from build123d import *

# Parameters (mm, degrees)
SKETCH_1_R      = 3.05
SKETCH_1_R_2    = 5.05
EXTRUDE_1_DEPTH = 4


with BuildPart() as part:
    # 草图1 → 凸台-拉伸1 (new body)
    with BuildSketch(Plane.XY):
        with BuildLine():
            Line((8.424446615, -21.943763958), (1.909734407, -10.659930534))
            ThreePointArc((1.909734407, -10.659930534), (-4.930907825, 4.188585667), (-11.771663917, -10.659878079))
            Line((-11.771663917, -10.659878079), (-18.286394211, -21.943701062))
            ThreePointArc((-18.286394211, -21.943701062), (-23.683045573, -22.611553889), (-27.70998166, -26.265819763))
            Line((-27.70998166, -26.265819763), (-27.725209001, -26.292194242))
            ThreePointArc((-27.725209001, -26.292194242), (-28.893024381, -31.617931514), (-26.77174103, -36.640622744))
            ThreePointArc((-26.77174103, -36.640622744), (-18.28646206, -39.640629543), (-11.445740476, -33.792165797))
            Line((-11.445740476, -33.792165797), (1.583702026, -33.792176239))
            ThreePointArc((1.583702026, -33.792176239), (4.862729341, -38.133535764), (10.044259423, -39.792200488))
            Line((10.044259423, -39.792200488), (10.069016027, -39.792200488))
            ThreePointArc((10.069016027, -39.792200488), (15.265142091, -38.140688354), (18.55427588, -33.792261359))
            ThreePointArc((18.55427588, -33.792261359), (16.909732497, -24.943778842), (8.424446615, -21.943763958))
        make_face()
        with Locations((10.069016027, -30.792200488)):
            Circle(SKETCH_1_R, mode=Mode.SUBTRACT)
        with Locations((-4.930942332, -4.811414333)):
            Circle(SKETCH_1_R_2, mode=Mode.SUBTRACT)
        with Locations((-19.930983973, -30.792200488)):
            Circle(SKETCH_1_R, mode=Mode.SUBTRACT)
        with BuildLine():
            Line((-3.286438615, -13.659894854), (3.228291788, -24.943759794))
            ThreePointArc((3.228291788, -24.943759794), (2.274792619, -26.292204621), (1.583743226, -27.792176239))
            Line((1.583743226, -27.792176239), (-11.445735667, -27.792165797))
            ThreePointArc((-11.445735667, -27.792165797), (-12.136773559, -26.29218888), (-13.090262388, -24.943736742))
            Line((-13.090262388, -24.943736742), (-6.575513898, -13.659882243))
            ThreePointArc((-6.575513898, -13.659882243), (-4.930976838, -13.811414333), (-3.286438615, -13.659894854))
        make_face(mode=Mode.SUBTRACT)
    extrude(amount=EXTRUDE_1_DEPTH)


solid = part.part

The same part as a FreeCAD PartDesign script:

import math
import FreeCAD as App
import Part
import Sketcher
from FreeCAD import Vector

doc = App.newDocument("Part")
body = doc.addObject("PartDesign::Body", "Body")

# Sketch on XY plane
sketch1 = body.newObject("Sketcher::SketchObject", "Sketch")
sketch1.AttachmentSupport = (doc.getObject("XY_Plane"), [""])
sketch1.MapMode = "FlatFace"
sketch1.addGeometry(Part.LineSegment(Vector(8.424447, -21.943764, 0), Vector(1.909734, -10.659931, 0)), False)
sketch1.addGeometry(Part.ArcOfCircle(Part.Circle(Vector(-4.930942, -4.811414, 0), Vector(0, 0, 1), 9), math.radians(-40.529173), math.radians(220.528733)), False)
sketch1.addGeometry(Part.LineSegment(Vector(-11.771664, -10.659878, 0), Vector(-18.286394, -21.943701, 0)), False)
sketch1.addGeometry(Part.ArcOfCircle(Part.Circle(Vector(-19.931019, -30.792159, 0), Vector(0, 0, 1), 9), math.radians(79.470827), math.radians(149.806189)), False)
sketch1.addGeometry(Part.LineSegment(Vector(-27.709982, -26.26582, 0), Vector(-27.725209, -26.292194, 0)), False)
sketch1.addGeometry(Part.ArcOfCircle(Part.Circle(Vector(-19.930984, -30.7922, 0), Vector(0, 0, 1), 9), math.radians(149.999954), math.radians(220.528386)), False)
sketch1.addGeometry(Part.ArcOfCircle(Part.Circle(Vector(-19.931019, -30.792159, 0), Vector(0, 0, 1), 9), math.radians(-139.471267), math.radians(-19.471267)), False)
sketch1.addGeometry(Part.LineSegment(Vector(-11.44574, -33.792166, 0), Vector(1.583702, -33.792176, 0)), False)
sketch1.addGeometry(Part.ArcOfCircle(Part.Circle(Vector(10.069004, -30.792235, 0), Vector(0, 0, 1), 9), math.radians(-160.529173), math.radians(-90.157529)), False)
sketch1.addGeometry(Part.LineSegment(Vector(10.044259, -39.7922, 0), Vector(10.069016, -39.7922, 0)), False)
sketch1.addGeometry(Part.ArcOfCircle(Part.Circle(Vector(10.069016, -30.7922, 0), Vector(0, 0, 1), 9), math.radians(-90), math.radians(-19.471632)), False)
sketch1.addGeometry(Part.ArcOfCircle(Part.Circle(Vector(10.069004, -30.792235, 0), Vector(0, 0, 1), 9), math.radians(-19.471402), math.radians(100.528733)), False)
sketch1.addGeometry(Part.Circle(Vector(-19.930984, -30.7922, 0), Vector(0, 0, 1), 3.05), False)
sketch1.addGeometry(Part.ArcOfCircle(Part.Circle(Vector(-4.930942, -4.811414, 0), Vector(0, 0, 1), 9), math.radians(-100.528825), math.radians(-79.471614)), False)
sketch1.addGeometry(Part.LineSegment(Vector(-3.286439, -13.659895, 0), Vector(3.228292, -24.94376, 0)), False)
sketch1.addGeometry(Part.ArcOfCircle(Part.Circle(Vector(10.069004, -30.792235, 0), Vector(0, 0, 1), 9), math.radians(139.471175), math.radians(160.528386)), False)
sketch1.addGeometry(Part.LineSegment(Vector(1.583743, -27.792176, 0), Vector(-11.445736, -27.792166, 0)), False)
sketch1.addGeometry(Part.ArcOfCircle(Part.Circle(Vector(-19.931019, -30.792159, 0), Vector(0, 0, 1), 9), math.radians(19.471175), math.radians(40.528386)), False)
sketch1.addGeometry(Part.LineSegment(Vector(-13.090262, -24.943737, 0), Vector(-6.575514, -13.659882, 0)), False)
sketch1.addGeometry(Part.Circle(Vector(10.069016, -30.7922, 0), Vector(0, 0, 1), 3.05), False)
sketch1.addGeometry(Part.Circle(Vector(-4.930942, -4.811414, 0), Vector(0, 0, 1), 5.05), False)
sketch1.addConstraint(Sketcher.Constraint("Coincident", 0, 2, 1, 1))
sketch1.addConstraint(Sketcher.Constraint("Coincident", 1, 2, 2, 1))
sketch1.addConstraint(Sketcher.Constraint("Coincident", 2, 2, 3, 1))
sketch1.addConstraint(Sketcher.Constraint("Coincident", 3, 2, 4, 1))
sketch1.addConstraint(Sketcher.Constraint("Coincident", 4, 2, 5, 1))
sketch1.addConstraint(Sketcher.Constraint("Coincident", 5, 2, 6, 1))
sketch1.addConstraint(Sketcher.Constraint("Coincident", 6, 2, 7, 1))
sketch1.addConstraint(Sketcher.Constraint("Coincident", 7, 2, 8, 1))
sketch1.addConstraint(Sketcher.Constraint("Coincident", 8, 2, 9, 1))
sketch1.addConstraint(Sketcher.Constraint("Coincident", 9, 2, 10, 1))
sketch1.addConstraint(Sketcher.Constraint("Coincident", 10, 2, 11, 1))
sketch1.addConstraint(Sketcher.Constraint("Coincident", 11, 2, 0, 1))
sketch1.addConstraint(Sketcher.Constraint("Coincident", 13, 2, 14, 1))
sketch1.addConstraint(Sketcher.Constraint("Coincident", 14, 2, 15, 1))
sketch1.addConstraint(Sketcher.Constraint("Coincident", 15, 2, 16, 1))
sketch1.addConstraint(Sketcher.Constraint("Coincident", 16, 2, 17, 1))
sketch1.addConstraint(Sketcher.Constraint("Coincident", 17, 2, 18, 1))
sketch1.addConstraint(Sketcher.Constraint("Coincident", 18, 2, 13, 1))
sketch1.addConstraint(Sketcher.Constraint("Horizontal", 9))
sketch1.addConstraint(Sketcher.Constraint("Coincident", 6, 3, 3, 3))
sketch1.addConstraint(Sketcher.Constraint("Coincident", 11, 3, 8, 3))
sketch1.addConstraint(Sketcher.Constraint("Coincident", 12, 3, 5, 3))
sketch1.addConstraint(Sketcher.Constraint("Coincident", 13, 3, 1, 3))
sketch1.addConstraint(Sketcher.Constraint("Coincident", 15, 3, 8, 3))
sketch1.addConstraint(Sketcher.Constraint("Coincident", 17, 3, 3, 3))
sketch1.addConstraint(Sketcher.Constraint("Coincident", 19, 3, 10, 3))
sketch1.addConstraint(Sketcher.Constraint("Coincident", 20, 3, 1, 3))
sketch1.addConstraint(Sketcher.Constraint("Radius", 1, 9.0))
sketch1.addConstraint(Sketcher.Constraint("Radius", 3, 9.0))
sketch1.addConstraint(Sketcher.Constraint("Radius", 5, 9.0))
sketch1.addConstraint(Sketcher.Constraint("Radius", 6, 9.0))
sketch1.addConstraint(Sketcher.Constraint("Radius", 8, 9.0))
sketch1.addConstraint(Sketcher.Constraint("Radius", 10, 9.0))
sketch1.addConstraint(Sketcher.Constraint("Radius", 11, 9.0))
sketch1.addConstraint(Sketcher.Constraint("Radius", 13, 9.0))
sketch1.addConstraint(Sketcher.Constraint("Radius", 15, 9.0))
sketch1.addConstraint(Sketcher.Constraint("Radius", 17, 9.0))
sketch1.addConstraint(Sketcher.Constraint("Diameter", 12, 6.1))
sketch1.addConstraint(Sketcher.Constraint("Diameter", 19, 6.1))
sketch1.addConstraint(Sketcher.Constraint("Diameter", 20, 10.1))
sketch1.addConstraint(Sketcher.Constraint("DistanceX", 5, 3, 10, 3, 30.0))
sketch1.addConstraint(Sketcher.Constraint("DistanceY", 7, 2, 15, 2, 6.0))
sketch1.addConstraint(Sketcher.Constraint("DistanceY", 6, 2, 16, 2, 6.0))
sketch1.addConstraint(Sketcher.Constraint("DistanceY", 5, 3, -1, 1, 30.7922))
sketch1.addConstraint(Sketcher.Constraint("DistanceY", 10, 3, -1, 1, 30.7922))
sketch1.addConstraint(Sketcher.Constraint("DistanceY", 2, 2, -1, 1, 21.943701))
sketch1.addConstraint(Sketcher.Constraint("DistanceX", 1, 2, 0, 2, 13.681398))
sketch1.addConstraint(Sketcher.Constraint("DistanceX", 7, 2, 8, 3, 8.485302))
sketch1.addConstraint(Sketcher.Constraint("Distance", 14, 13.029479))
sketch1.addConstraint(Sketcher.Constraint("Distance", 16, 13.029479))
sketch1.addConstraint(Sketcher.Constraint("Distance", 18, 13.029479))
sketch1.addConstraint(Sketcher.Constraint("DistanceX", 9, 1, 9, 2, 0.024757))
sketch1.addConstraint(Sketcher.Constraint("DistanceX", 3, 3, -1, 1, 19.931019))
sketch1.addConstraint(Sketcher.Constraint("DistanceY", 3, 3, -1, 1, 30.792159))
sketch1.addConstraint(Sketcher.Constraint("DistanceY", 0, 2, -1, 1, 10.659931))
sketch1.addConstraint(Sketcher.Constraint("DistanceY", 1, 2, -1, 1, 10.659878))
sketch1.addConstraint(Sketcher.Constraint("DistanceX", 3, 2, -1, 1, 27.709982))
sketch1.addConstraint(Sketcher.Constraint("DistanceX", 4, 2, -1, 1, 27.725209))
sketch1.addConstraint(Sketcher.Constraint("DistanceX", 5, 2, -1, 1, 26.771741))
sketch1.addConstraint(Sketcher.Constraint("DistanceX", -1, 1, 8, 2, 10.044259))
sketch1.addConstraint(Sketcher.Constraint("DistanceY", 10, 2, -1, 1, 33.792261))
sketch1.addConstraint(Sketcher.Constraint("DistanceX", 13, 2, -1, 1, 3.286439))
sketch1.addConstraint(Sketcher.Constraint("DistanceX", -1, 1, 14, 2, 3.228292))
sketch1.addConstraint(Sketcher.Constraint("DistanceX", 11, 2, 10, 3, 1.644569))
sketch1.addConstraint(Sketcher.Constraint("DistanceY", 16, 2, 17, 2, 2.848429))
pad1 = body.newObject("PartDesign::Pad", "Pad")
pad1.Profile = sketch1
pad1.Length = 4

doc.recompute()
